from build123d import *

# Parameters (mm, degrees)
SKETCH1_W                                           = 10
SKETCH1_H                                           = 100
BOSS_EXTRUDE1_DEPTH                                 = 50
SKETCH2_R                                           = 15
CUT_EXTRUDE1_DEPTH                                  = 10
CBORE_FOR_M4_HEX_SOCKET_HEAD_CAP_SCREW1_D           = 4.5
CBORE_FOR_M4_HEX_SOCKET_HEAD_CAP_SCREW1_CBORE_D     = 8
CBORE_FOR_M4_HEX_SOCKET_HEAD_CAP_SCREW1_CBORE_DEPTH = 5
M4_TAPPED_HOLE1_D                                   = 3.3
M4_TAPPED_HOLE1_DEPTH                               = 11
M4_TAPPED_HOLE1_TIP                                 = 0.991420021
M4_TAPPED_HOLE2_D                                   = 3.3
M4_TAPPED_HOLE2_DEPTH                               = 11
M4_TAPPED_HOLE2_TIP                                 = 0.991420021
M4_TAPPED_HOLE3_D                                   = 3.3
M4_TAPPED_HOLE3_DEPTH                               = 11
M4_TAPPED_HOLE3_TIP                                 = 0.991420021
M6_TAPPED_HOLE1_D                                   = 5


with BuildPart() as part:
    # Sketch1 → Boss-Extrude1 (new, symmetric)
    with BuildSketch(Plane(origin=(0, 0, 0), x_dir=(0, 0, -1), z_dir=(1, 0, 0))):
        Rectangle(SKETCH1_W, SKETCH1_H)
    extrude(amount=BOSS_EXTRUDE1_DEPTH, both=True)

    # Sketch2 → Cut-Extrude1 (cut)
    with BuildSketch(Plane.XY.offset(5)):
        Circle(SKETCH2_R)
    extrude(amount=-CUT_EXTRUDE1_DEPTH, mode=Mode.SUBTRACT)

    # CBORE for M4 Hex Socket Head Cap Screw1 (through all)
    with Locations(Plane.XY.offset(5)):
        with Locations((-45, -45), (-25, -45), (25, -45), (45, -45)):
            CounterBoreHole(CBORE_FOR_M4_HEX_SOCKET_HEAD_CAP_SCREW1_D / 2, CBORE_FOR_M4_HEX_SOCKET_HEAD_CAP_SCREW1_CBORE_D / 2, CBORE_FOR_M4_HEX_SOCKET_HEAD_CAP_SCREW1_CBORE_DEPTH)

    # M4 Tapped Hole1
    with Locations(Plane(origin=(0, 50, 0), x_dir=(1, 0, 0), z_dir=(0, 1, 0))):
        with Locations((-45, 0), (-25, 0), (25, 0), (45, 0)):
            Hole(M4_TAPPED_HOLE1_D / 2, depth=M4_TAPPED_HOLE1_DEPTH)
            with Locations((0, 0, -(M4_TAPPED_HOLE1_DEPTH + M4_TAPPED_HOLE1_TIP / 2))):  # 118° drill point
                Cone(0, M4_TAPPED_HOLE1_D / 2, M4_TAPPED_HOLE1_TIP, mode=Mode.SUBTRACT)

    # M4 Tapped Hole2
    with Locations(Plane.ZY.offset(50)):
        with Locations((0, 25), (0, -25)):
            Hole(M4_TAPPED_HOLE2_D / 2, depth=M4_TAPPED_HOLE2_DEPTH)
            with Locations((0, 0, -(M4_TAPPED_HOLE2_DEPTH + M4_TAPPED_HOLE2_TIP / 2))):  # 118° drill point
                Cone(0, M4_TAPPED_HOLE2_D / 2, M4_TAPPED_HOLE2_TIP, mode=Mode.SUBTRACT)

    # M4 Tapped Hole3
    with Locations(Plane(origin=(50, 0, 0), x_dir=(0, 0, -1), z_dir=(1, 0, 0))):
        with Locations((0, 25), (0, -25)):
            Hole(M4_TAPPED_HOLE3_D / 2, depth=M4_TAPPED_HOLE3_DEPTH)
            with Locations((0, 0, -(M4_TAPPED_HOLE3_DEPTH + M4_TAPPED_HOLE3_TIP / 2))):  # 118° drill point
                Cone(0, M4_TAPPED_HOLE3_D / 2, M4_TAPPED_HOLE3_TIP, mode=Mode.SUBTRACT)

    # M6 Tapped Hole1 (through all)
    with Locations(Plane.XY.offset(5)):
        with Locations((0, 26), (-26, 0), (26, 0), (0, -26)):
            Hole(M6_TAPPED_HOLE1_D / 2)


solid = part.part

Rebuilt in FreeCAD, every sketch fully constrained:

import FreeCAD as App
import Part
import Sketcher
Q = App.Units.Quantity

doc = App.newDocument("Part")
params = doc.addObject("Spreadsheet::Sheet", "Params")
for row, (alias, value) in enumerate([
    ("sketch1_width", "100 mm"),
    ("sketch1_height", "10 mm"),
    ("pad1_length", "100 mm"),
    ("sketch2_diameter", "30 mm"),
    ("pocket1_length", "10 mm"),
    ("sketch3_diameter", "4.5 mm"),
    ("hole_diameter", "4.5 mm"),
    ("hole_cbore_diameter", "8 mm"),
    ("hole_cbore_depth", "5 mm"),
    ("sketch4_diameter", "3.3 mm"),
    ("hole2_diameter", "3.3 mm"),
    ("hole2_depth", "11 mm"),
    ("sketch5_diameter", "3.3 mm"),
    ("hole3_diameter", "3.3 mm"),
    ("hole3_depth", "11 mm"),
    ("sketch6_diameter", "3.3 mm"),
    ("hole4_diameter", "3.3 mm"),
    ("hole4_depth", "11 mm"),
    ("sketch7_diameter", "5 mm"),
    ("hole5_diameter", "5 mm"),
], start=1):
    params.set(f"A{row}", alias)
    params.set(f"B{row}", "=" + value)
    params.setAlias(f"B{row}", alias)

body = doc.addObject("PartDesign::Body", "Body")

# Sketch on YZ plane
sketch1 = doc.addObject("Sketcher::SketchObject", "Sketch")
body.addObject(sketch1)
sketch1.AttachmentSupport = (doc.YZ_Plane, [""])
sketch1.MapMode = "FlatFace"
sketch1.addGeometry(Part.LineSegment(App.Vector(50, 5, 0), App.Vector(-50, 5, 0)), False)
sketch1.addGeometry(Part.LineSegment(App.Vector(-50, 5, 0), App.Vector(-50, -5, 0)), False)
sketch1.addGeometry(Part.LineSegment(App.Vector(-50, -5, 0), App.Vector(50, -5, 0)), False)
sketch1.addGeometry(Part.LineSegment(App.Vector(50, -5, 0), App.Vector(50, 5, 0)), False)
sketch1.addConstraint(Sketcher.Constraint("Coincident", 0, 2, 1, 1))
sketch1.addConstraint(Sketcher.Constraint("Coincident", 1, 2, 2, 1))
sketch1.addConstraint(Sketcher.Constraint("Coincident", 2, 2, 3, 1))
sketch1.addConstraint(Sketcher.Constraint("Coincident", 3, 2, 0, 1))
sketch1.addConstraint(Sketcher.Constraint("Horizontal", 0))
sketch1.addConstraint(Sketcher.Constraint("Vertical", 1))
sketch1.addConstraint(Sketcher.Constraint("Horizontal", 2))
sketch1.addConstraint(Sketcher.Constraint("Vertical", 3))
sketch1.addConstraint(Sketcher.Constraint("Symmetric", 0, 2, 2, 2, -1, 1))
sketch1.addConstraint(Sketcher.Constraint("DistanceX", 0, 2, 0, 1, Q("100 mm")))
sketch1.addConstraint(Sketcher.Constraint("DistanceY", 1, 2, 1, 1, Q("10 mm")))
sketch1.setExpression("Constraints[9]", "Params.sketch1_width")
sketch1.setExpression("Constraints[10]", "Params.sketch1_height")
pad1 = doc.addObject("PartDesign::Pad", "Pad")
body.addObject(pad1)
pad1.Profile = sketch1
pad1.setExpression("Length", "Params.pad1_length")
pad1.Midplane = True

# Sketch on XY plane
sketch2 = doc.addObject("Sketcher::SketchObject", "Sketch001")
body.addObject(sketch2)
sketch2.AttachmentSupport = (doc.XY_Plane, [""])
sketch2.MapMode = "FlatFace"
sketch2.AttachmentOffset = App.Placement(App.Vector(0, 0, 5), App.Rotation())
sketch2.addGeometry(Part.Circle(App.Vector(0, 0, 0), App.Vector(0, 0, 1), 15), False)
sketch2.addConstraint(Sketcher.Constraint("Coincident", 0, 3, -1, 1))
sketch2.addConstraint(Sketcher.Constraint("Diameter", 0, Q("30 mm")))
sketch2.setExpression("Constraints[1]", "Params.sketch2_diameter")
pocket1 = doc.addObject("PartDesign::Pocket", "Pocket")
body.addObject(pocket1)
pocket1.Profile = sketch2
pocket1.setExpression("Length", "Params.pocket1_length")

# Sketch on XY plane
sketch3 = doc.addObject("Sketcher::SketchObject", "Sketch002")
body.addObject(sketch3)
sketch3.AttachmentSupport = (doc.XY_Plane, [""])
sketch3.MapMode = "FlatFace"
sketch3.AttachmentOffset = App.Placement(App.Vector(0, 0, 5), App.Rotation())
sketch3.addGeometry(Part.Circle(App.Vector(-45, -45, 0), App.Vector(0, 0, 1), 2.2), False)
sketch3.addGeometry(Part.Circle(App.Vector(-25, -45, 0), App.Vector(0, 0, 1), 2.2), False)
sketch3.addGeometry(Part.Circle(App.Vector(25, -45, 0), App.Vector(0, 0, 1), 2.2), False)
sketch3.addGeometry(Part.Circle(App.Vector(45, -45, 0), App.Vector(0, 0, 1), 2.2), False)
sketch3.addConstraint(Sketcher.Constraint("Equal", 0, 1))
sketch3.addConstraint(Sketcher.Constraint("Equal", 1, 2))
sketch3.addConstraint(Sketcher.Constraint("Equal", 2, 3))
sketch3.addConstraint(Sketcher.Constraint("Symmetric", 1, 3, 2, 3, -2))
sketch3.addConstraint(Sketcher.Constraint("Symmetric", 0, 3, 3, 3, -2))
sketch3.addConstraint(Sketcher.Constraint("Horizontal", 0, 3, 1, 3))
sketch3.addConstraint(Sketcher.Constraint("Diameter", 0, Q("4.5 mm")))
sketch3.addConstraint(Sketcher.Constraint("DistanceX", 0, 3, -1, 1, Q("45 mm")))
sketch3.addConstraint(Sketcher.Constraint("DistanceY", 0, 3, -1, 1, Q("45 mm")))
sketch3.addConstraint(Sketcher.Constraint("DistanceX", 1, 3, -1, 1, Q("25 mm")))
sketch3.setExpression("Constraints[6]", "Params.sketch3_diameter")
doc.recompute()
hole = doc.addObject("PartDesign::Hole", "Hole")
body.addObject(hole)
hole.Profile = sketch3
hole.ThreadType = "None"
hole.setExpression("Diameter", "Params.hole_diameter")
hole.DepthType = "ThroughAll"
hole.HoleCutType = "Counterbore"
hole.setExpression("HoleCutDiameter", "Params.hole_cbore_diameter")
hole.setExpression("HoleCutDepth", "Params.hole_cbore_depth")

# Sketch on XZ plane
sketch4 = doc.addObject("Sketcher::SketchObject", "Sketch003")
body.addObject(sketch4)
sketch4.AttachmentSupport = (doc.XZ_Plane, [""])
sketch4.MapMode = "FlatFace"
sketch4.AttachmentOffset = App.Placement(App.Vector(0, 0, -50), App.Rotation())
sketch4.addGeometry(Part.Circle(App.Vector(-45, 0, 0), App.Vector(0, 0, 1), 1.6), False)
sketch4.addGeometry(Part.Circle(App.Vector(-25, 0, 0), App.Vector(0, 0, 1), 1.6), False)
sketch4.addGeometry(Part.Circle(App.Vector(25, 0, 0), App.Vector(0, 0, 1), 1.6), False)
sketch4.addGeometry(Part.Circle(App.Vector(45, 0, 0), App.Vector(0, 0, 1), 1.6), False)
sketch4.addConstraint(Sketcher.Constraint("Equal", 0, 1))
sketch4.addConstraint(Sketcher.Constraint("Equal", 1, 2))
sketch4.addConstraint(Sketcher.Constraint("Equal", 2, 3))
sketch4.addConstraint(Sketcher.Constraint("Symmetric", 1, 3, 2, 3, -1, 1))
sketch4.addConstraint(Sketcher.Constraint("Symmetric", 0, 3, 3, 3, -1, 1))
sketch4.addConstraint(Sketcher.Constraint("PointOnObject", 0, 3, -1))
sketch4.addConstraint(Sketcher.Constraint("PointOnObject", 1, 3, -1))
sketch4.addConstraint(Sketcher.Constraint("Diameter", 0, Q("3.3 mm")))
sketch4.addConstraint(Sketcher.Constraint("DistanceX", 0, 3, -1, 1, Q("45 mm")))
sketch4.addConstraint(Sketcher.Constraint("DistanceX", 1, 3, -1, 1, Q("25 mm")))
sketch4.setExpression("Constraints[7]", "Params.sketch4_diameter")
doc.recompute()
hole2 = doc.addObject("PartDesign::Hole", "Hole001")
body.addObject(hole2)
hole2.Profile = sketch4
hole2.ThreadType = "None"
hole2.setExpression("Diameter", "Params.hole2_diameter")
hole2.DepthType = "Dimension"
hole2.setExpression("Depth", "Params.hole2_depth")
hole2.DrillPoint = "Angled"
hole2.DrillPointAngle = 118
hole2.Reversed = True

# Sketch on YZ plane
sketch5 = doc.addObject("Sketcher::SketchObject", "Sketch004")
body.addObject(sketch5)
sketch5.AttachmentSupport = (doc.YZ_Plane, [""])
sketch5.MapMode = "FlatFace"
sketch5.AttachmentOffset = App.Placement(App.Vector(0, 0, -50), App.Rotation())
sketch5.addGeometry(Part.Circle(App.Vector(25, 0, 0), App.Vector(0, 0, 1), 1.6), False)
sketch5.addGeometry(Part.Circle(App.Vector(-25, 0, 0), App.Vector(0, 0, 1), 1.6), False)
sketch5.addConstraint(Sketcher.Constraint("Equal", 0, 1))
sketch5.addConstraint(Sketcher.Constraint("Symmetric", 0, 3, 1, 3, -1, 1))
sketch5.addConstraint(Sketcher.Constraint("PointOnObject", 0, 3, -1))
sketch5.addConstraint(Sketcher.Constraint("Diameter", 0, Q("3.3 mm")))
sketch5.addConstraint(Sketcher.Constraint("DistanceX", -1, 1, 0, 3, Q("25 mm")))
sketch5.setExpression("Constraints[3]", "Params.sketch5_diameter")
doc.recompute()
hole3 = doc.addObject("PartDesign::Hole", "Hole002")
body.addObject(hole3)
hole3.Profile = sketch5
hole3.ThreadType = "None"
hole3.setExpression("Diameter", "Params.hole3_diameter")
hole3.DepthType = "Dimension"
hole3.setExpression("Depth", "Params.hole3_depth")
hole3.DrillPoint = "Angled"
hole3.DrillPointAngle = 118
hole3.Reversed = True

# Sketch on YZ plane
sketch6 = doc.addObject("Sketcher::SketchObject", "Sketch005")
body.addObject(sketch6)
sketch6.AttachmentSupport = (doc.YZ_Plane, [""])
sketch6.MapMode = "FlatFace"
sketch6.AttachmentOffset = App.Placement(App.Vector(0, 0, 50), App.Rotation())
sketch6.addGeometry(Part.Circle(App.Vector(25, 0, 0), App.Vector(0, 0, 1), 1.6), False)
sketch6.addGeometry(Part.Circle(App.Vector(-25, 0, 0), App.Vector(0, 0, 1), 1.6), False)
sketch6.addConstraint(Sketcher.Constraint("Equal", 0, 1))
sketch6.addConstraint(Sketcher.Constraint("Symmetric", 0, 3, 1, 3, -1, 1))
sketch6.addConstraint(Sketcher.Constraint("PointOnObject", 0, 3, -1))
sketch6.addConstraint(Sketcher.Constraint("Diameter", 0, Q("3.3 mm")))
sketch6.addConstraint(Sketcher.Constraint("DistanceX", -1, 1, 0, 3, Q("25 mm")))
sketch6.setExpression("Constraints[3]", "Params.sketch6_diameter")
doc.recompute()
hole4 = doc.addObject("PartDesign::Hole", "Hole003")
body.addObject(hole4)
hole4.Profile = sketch6
hole4.ThreadType = "None"
hole4.setExpression("Diameter", "Params.hole4_diameter")
hole4.DepthType = "Dimension"
hole4.setExpression("Depth", "Params.hole4_depth")
hole4.DrillPoint = "Angled"
hole4.DrillPointAngle = 118

# Sketch on XY plane
sketch7 = doc.addObject("Sketcher::SketchObject", "Sketch006")
body.addObject(sketch7)
sketch7.AttachmentSupport = (doc.XY_Plane, [""])
sketch7.MapMode = "FlatFace"
sketch7.AttachmentOffset = App.Placement(App.Vector(0, 0, 5), App.Rotation())
sketch7.addGeometry(Part.Circle(App.Vector(0, 26, 0), App.Vector(0, 0, 1), 2.5), False)
sketch7.addGeometry(Part.Circle(App.Vector(-26, 0, 0), App.Vector(0, 0, 1), 2.5), False)
sketch7.addGeometry(Part.Circle(App.Vector(26, 0, 0), App.Vector(0, 0, 1), 2.5), False)
sketch7.addGeometry(Part.Circle(App.Vector(0, -26, 0), App.Vector(0, 0, 1), 2.5), False)
sketch7.addConstraint(Sketcher.Constraint("Equal", 0, 1))
sketch7.addConstraint(Sketcher.Constraint("Equal", 1, 2))
sketch7.addConstraint(Sketcher.Constraint("Equal", 2, 3))
sketch7.addConstraint(Sketcher.Constraint("Symmetric", 1, 3, 2, 3, -1, 1))
sketch7.addConstraint(Sketcher.Constraint("Symmetric", 0, 3, 3, 3, -1, 1))
sketch7.addConstraint(Sketcher.Constraint("PointOnObject", 0, 3, -2))
sketch7.addConstraint(Sketcher.Constraint("PointOnObject", 1, 3, -1))
sketch7.addConstraint(Sketcher.Constraint("Diameter", 0, Q("5 mm")))
sketch7.addConstraint(Sketcher.Constraint("DistanceY", -1, 1, 0, 3, Q("26 mm")))
sketch7.addConstraint(Sketcher.Constraint("DistanceX", 1, 3, -1, 1, Q("26 mm")))
sketch7.setExpression("Constraints[7]", "Params.sketch7_diameter")
doc.recompute()
hole5 = doc.addObject("PartDesign::Hole", "Hole004")
body.addObject(hole5)
hole5.Profile = sketch7
hole5.ThreadType = "None"
hole5.setExpression("Diameter", "Params.hole5_diameter")
hole5.DepthType = "ThroughAll"

doc.recompute()
